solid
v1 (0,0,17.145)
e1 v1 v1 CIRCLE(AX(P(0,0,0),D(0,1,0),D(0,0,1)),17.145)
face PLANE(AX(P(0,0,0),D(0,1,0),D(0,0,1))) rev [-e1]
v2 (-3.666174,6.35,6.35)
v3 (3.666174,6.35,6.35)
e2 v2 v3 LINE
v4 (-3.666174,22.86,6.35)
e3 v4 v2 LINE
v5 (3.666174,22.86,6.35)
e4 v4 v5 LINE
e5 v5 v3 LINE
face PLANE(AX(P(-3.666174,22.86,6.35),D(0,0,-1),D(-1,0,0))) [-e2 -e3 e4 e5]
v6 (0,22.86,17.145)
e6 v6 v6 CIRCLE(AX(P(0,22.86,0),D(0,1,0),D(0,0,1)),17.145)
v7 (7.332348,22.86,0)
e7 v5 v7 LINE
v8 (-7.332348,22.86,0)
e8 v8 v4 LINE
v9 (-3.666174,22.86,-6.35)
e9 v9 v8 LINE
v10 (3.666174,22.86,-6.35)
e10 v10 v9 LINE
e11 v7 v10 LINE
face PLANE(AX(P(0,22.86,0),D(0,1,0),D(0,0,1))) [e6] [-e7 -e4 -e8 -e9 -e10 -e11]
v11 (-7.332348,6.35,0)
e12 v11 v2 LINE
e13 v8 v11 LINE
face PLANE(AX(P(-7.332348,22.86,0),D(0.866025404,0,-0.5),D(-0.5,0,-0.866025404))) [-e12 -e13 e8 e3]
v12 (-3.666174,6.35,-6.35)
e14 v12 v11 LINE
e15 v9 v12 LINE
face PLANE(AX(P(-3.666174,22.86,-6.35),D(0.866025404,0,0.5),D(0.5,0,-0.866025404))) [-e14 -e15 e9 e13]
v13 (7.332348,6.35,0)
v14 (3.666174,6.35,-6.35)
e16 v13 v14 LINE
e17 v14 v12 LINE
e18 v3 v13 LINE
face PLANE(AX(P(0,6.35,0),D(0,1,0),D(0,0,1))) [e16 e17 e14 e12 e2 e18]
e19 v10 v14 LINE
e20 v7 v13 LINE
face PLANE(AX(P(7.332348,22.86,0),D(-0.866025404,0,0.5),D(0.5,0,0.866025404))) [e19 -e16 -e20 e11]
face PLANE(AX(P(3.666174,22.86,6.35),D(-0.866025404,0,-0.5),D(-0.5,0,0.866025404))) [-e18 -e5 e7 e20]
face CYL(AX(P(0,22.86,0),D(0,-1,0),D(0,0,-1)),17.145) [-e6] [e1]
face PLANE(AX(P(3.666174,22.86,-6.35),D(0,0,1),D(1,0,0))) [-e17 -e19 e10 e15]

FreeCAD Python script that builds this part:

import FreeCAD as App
import Part
import Sketcher
from FreeCAD import Vector
Q = App.Units.Quantity


def add_polygon(sketch, points):
    """Adds a closed chain of lines whose ends are joined by coincident constraints."""
    first, n = sketch.GeometryCount, len(points)
    for a, b in zip(points, points[1:] + points[:1]):
        sketch.addGeometry(Part.LineSegment(App.Vector(*a, 0), App.Vector(*b, 0)), False)
    for i in range(n):
        sketch.addConstraint(Sketcher.Constraint("Coincident", first + i, 2, first + (i + 1) % n, 1))

doc = App.newDocument("Part")
body = doc.addObject("PartDesign::Body", "Body")

# Sketch on XZ plane
sketch1 = body.newObject("Sketcher::SketchObject", "Sketch")
sketch1.AttachmentSupport = (doc.getObject("XZ_Plane"), [""])
sketch1.MapMode = "FlatFace"
sketch1.addGeometry(Part.Circle(Vector(0, 0, 0), Vector(0, 0, 1), 17), False)  # 0
add_polygon(sketch1, [(4, -6), (7, 0), (4, 6), (-4, 6), (-7, 0), (-4, -6)])  # lines 1-6
sketch1.addConstraint(Sketcher.Constraint("Horizontal", 3))
sketch1.addConstraint(Sketcher.Constraint("Horizontal", 6))
sketch1.addConstraint(Sketcher.Constraint("Coincident", 0, 3, -1, 1))
sketch1.addConstraint(Sketcher.Constraint("Symmetric", 1, 2, 4, 2, -1, 1))
sketch1.addConstraint(Sketcher.Constraint("Symmetric", 2, 2, 5, 2, -1, 1))
sketch1.addConstraint(Sketcher.Constraint("PointOnObject", 1, 2, -1))
sketch1.addConstraint(Sketcher.Constraint("Parallel", 1, 4))
sketch1.addConstraint(Sketcher.Constraint("Vertical", 3, 2, 5, 2))
sketch1.addConstraint(Sketcher.Constraint("Diameter", 0, Q("1.35 in")))
sketch1.addConstraint(Sketcher.Constraint("Angle", 1, Q("60 deg")))
sketch1.addConstraint(Sketcher.Constraint("DistanceY", 5, 2, 3, 2, Q("0.5 in")))
sketch1.addConstraint(Sketcher.Constraint("DistanceX", 3, 2, 3, 1, 7.332348))
pad1 = body.newObject("PartDesign::Pad", "Pad")
pad1.Profile = sketch1
pad1.Length = Q("0.9 in")
pad1.Reversed = True

# Sketch on XZ plane
sketch2 = body.newObject("Sketcher::SketchObject", "Sketch001")
sketch2.AttachmentSupport = (doc.getObject("XZ_Plane"), [""])
sketch2.MapMode = "FlatFace"
add_polygon(sketch2, [(-4, 6), (4, 6), (7, 0), (4, -6), (-4, -6), (-7, 0)])  # lines 0-5
sketch2.addConstraint(Sketcher.Constraint("Horizontal", 0))
sketch2.addConstraint(Sketcher.Constraint("Horizontal", 3))
sketch2.addConstraint(Sketcher.Constraint("Symmetric", 0, 2, 3, 2, -1, 1))
sketch2.addConstraint(Sketcher.Constraint("Symmetric", 1, 2, 4, 2, -1, 1))
sketch2.addConstraint(Sketcher.Constraint("PointOnObject", 1, 2, -1))
sketch2.addConstraint(Sketcher.Constraint("Parallel", 2, 5))
sketch2.addConstraint(Sketcher.Constraint("Vertical", 0, 2, 2, 2))
sketch2.addConstraint(Sketcher.Constraint("Angle", 1, Q("-60 deg")))
sketch2.addConstraint(Sketcher.Constraint("DistanceY", 2, 2, 0, 2, Q("0.5 in")))
sketch2.addConstraint(Sketcher.Constraint("DistanceX", 0, 1, 0, 2, 7.332348))
pad2 = body.newObject("PartDesign::Pad", "Pad001")
pad2.Profile = sketch2
pad2.Length = Q("0.25 in")
pad2.Reversed = True

doc.recompute()
